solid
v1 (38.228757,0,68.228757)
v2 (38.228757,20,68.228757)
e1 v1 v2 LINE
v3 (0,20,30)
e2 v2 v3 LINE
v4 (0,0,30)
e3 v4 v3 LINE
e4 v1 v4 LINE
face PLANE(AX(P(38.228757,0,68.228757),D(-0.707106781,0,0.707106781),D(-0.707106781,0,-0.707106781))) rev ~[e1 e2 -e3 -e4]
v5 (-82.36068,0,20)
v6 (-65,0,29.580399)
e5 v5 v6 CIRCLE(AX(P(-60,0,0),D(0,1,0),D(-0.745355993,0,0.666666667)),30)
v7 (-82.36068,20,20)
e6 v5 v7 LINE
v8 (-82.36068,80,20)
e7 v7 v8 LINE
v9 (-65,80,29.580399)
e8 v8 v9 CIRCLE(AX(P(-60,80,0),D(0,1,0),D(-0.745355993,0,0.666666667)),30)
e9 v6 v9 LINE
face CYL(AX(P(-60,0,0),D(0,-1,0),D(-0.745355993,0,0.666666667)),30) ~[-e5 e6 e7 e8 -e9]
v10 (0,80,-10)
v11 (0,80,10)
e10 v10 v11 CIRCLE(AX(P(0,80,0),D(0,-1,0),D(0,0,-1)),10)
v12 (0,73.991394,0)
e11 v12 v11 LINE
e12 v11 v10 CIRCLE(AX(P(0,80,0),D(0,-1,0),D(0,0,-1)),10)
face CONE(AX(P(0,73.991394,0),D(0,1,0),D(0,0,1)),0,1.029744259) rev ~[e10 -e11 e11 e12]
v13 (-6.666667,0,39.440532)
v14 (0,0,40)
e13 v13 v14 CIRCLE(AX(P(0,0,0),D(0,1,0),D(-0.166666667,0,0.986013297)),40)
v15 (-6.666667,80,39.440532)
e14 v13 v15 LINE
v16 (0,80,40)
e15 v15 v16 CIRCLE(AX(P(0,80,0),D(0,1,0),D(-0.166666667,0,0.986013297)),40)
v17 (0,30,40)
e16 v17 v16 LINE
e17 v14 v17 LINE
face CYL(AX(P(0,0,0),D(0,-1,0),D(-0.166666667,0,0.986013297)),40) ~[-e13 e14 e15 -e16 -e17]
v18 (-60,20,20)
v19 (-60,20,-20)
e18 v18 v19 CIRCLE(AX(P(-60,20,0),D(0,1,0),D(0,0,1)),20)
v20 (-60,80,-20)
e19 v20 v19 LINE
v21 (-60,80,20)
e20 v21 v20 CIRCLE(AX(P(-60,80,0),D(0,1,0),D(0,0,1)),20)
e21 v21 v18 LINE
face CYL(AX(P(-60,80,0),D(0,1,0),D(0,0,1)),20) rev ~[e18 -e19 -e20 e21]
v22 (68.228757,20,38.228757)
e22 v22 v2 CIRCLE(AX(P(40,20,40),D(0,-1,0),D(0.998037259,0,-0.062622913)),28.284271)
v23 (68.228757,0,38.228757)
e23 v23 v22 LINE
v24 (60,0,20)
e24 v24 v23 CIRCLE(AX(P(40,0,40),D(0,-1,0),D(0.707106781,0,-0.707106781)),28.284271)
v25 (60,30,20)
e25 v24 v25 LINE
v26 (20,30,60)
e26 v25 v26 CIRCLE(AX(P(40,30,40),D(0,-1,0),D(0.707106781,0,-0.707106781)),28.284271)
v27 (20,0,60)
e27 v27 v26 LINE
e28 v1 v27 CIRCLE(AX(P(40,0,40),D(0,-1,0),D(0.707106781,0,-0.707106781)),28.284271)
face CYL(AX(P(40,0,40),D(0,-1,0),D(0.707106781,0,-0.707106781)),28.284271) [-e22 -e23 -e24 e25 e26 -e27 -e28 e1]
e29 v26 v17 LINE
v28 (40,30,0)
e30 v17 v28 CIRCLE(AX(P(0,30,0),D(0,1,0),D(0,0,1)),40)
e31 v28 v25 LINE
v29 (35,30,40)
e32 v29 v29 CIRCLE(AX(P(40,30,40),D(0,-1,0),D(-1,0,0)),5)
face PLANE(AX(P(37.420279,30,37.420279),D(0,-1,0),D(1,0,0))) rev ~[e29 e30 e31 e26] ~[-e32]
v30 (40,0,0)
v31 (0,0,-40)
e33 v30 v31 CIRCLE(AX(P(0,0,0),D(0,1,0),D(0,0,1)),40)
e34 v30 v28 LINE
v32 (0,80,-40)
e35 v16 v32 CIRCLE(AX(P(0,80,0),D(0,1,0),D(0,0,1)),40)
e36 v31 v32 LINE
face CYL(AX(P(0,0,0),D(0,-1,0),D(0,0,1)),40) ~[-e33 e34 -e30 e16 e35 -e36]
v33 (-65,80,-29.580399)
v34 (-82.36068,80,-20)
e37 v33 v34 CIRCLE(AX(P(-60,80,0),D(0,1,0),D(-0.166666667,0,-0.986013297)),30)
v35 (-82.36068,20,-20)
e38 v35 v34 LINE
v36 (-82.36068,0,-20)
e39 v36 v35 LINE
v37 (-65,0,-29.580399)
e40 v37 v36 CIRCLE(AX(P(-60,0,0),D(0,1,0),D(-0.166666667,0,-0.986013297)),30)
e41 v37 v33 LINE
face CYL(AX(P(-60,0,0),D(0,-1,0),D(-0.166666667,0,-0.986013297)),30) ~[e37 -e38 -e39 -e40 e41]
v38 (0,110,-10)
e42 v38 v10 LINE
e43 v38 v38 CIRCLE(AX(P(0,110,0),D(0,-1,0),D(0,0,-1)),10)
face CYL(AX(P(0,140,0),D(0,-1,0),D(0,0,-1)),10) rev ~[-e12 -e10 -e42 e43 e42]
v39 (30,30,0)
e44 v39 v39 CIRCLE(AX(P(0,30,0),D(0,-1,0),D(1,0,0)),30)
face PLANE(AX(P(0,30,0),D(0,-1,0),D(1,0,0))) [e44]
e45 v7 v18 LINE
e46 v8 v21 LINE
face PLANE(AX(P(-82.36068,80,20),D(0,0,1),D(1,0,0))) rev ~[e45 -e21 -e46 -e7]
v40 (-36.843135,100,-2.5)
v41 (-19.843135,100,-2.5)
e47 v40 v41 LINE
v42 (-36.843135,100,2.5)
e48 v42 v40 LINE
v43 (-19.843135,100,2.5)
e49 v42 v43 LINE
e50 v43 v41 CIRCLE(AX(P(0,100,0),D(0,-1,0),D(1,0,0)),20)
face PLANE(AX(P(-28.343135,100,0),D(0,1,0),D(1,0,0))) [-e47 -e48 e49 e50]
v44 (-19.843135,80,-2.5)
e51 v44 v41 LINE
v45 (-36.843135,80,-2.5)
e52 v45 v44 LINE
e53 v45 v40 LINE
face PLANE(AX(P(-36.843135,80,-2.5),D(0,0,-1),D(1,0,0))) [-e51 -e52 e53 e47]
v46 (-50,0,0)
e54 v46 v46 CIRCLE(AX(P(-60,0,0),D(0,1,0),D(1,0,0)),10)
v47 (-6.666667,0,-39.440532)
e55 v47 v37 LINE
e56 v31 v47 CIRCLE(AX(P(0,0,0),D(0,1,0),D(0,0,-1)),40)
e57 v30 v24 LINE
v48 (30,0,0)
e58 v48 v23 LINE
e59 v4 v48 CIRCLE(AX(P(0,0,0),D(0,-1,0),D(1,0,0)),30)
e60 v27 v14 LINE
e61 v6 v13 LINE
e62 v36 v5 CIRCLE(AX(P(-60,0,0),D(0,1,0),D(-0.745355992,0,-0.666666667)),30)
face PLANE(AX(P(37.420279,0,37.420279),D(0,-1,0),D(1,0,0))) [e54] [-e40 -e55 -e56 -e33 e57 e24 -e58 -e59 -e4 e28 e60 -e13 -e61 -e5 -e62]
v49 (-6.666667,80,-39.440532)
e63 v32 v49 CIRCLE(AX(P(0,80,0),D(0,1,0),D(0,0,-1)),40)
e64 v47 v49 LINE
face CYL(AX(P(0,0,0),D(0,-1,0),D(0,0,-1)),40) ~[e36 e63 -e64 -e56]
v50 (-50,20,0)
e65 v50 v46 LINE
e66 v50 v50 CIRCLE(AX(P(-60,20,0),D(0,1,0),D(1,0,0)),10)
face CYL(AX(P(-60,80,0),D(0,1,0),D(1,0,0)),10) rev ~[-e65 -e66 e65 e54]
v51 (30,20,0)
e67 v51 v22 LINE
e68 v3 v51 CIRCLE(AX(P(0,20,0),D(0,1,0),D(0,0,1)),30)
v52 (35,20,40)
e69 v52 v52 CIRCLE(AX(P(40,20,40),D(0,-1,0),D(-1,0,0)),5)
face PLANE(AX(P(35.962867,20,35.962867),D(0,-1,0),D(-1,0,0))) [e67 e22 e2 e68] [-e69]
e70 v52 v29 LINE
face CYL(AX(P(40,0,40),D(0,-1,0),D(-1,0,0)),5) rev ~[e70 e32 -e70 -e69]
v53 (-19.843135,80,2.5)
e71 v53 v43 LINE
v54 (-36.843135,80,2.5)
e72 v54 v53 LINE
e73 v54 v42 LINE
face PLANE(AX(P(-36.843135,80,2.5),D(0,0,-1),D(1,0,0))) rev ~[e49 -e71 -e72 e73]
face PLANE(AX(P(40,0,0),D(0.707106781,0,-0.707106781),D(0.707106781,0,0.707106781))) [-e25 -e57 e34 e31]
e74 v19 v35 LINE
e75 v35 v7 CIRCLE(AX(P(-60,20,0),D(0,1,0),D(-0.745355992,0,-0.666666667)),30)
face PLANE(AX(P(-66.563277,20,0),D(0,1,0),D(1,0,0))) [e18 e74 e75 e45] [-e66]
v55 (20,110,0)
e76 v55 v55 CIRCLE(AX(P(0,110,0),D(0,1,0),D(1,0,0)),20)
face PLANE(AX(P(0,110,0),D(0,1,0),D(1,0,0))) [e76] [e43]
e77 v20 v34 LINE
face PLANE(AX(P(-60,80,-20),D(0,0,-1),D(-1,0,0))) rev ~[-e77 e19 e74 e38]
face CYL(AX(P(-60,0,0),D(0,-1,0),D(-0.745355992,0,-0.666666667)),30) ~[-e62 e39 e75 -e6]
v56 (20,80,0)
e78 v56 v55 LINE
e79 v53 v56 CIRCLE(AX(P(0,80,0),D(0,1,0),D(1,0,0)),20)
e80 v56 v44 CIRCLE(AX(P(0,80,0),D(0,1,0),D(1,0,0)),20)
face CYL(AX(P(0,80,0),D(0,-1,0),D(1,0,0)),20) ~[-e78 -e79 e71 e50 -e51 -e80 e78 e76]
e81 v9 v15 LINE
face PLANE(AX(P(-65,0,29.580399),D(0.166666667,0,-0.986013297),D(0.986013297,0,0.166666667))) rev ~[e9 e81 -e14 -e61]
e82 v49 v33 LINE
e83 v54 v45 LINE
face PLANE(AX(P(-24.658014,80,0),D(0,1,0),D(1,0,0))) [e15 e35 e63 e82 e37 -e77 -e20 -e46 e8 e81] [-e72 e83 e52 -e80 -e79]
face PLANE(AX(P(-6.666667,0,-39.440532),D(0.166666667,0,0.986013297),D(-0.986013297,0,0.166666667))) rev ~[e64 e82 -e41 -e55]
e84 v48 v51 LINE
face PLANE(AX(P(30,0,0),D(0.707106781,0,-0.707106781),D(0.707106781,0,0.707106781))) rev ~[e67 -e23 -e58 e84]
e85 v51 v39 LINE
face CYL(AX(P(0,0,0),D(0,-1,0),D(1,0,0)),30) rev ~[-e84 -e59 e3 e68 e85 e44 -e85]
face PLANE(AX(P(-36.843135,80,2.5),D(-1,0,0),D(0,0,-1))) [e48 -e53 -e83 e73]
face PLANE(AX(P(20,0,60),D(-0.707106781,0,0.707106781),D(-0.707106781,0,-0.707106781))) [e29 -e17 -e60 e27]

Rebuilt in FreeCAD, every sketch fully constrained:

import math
import FreeCAD as App
import Part
import Sketcher
from FreeCAD import Vector
Q = App.Units.Quantity

doc = App.newDocument("Part")
body = doc.addObject("PartDesign::Body", "Body")

# Sketch on XZ plane
sketch1 = body.newObject("Sketcher::SketchObject", "Sketch")
sketch1.AttachmentSupport = (doc.getObject("XZ_Plane"), [""])
sketch1.MapMode = "FlatFace"
sketch1.addGeometry(Part.LineSegment(Vector(-6.666667, -39.440532, 0), Vector(-65, -29.580399, 0)), False)
sketch1.addGeometry(Part.ArcOfCircle(Part.Circle(Vector(-60, 0, 0), Vector(0, 0, 1), 30), math.radians(-138.189685), math.radians(-99.594068)), False)
sketch1.addGeometry(Part.ArcOfCircle(Part.Circle(Vector(-60, 0, 0), Vector(0, 0, 1), 30), math.radians(138.189685), math.radians(221.810315)), False)
sketch1.addGeometry(Part.ArcOfCircle(Part.Circle(Vector(-60, 0, 0), Vector(0, 0, 1), 30), math.radians(99.594068), math.radians(138.189685)), False)
sketch1.addGeometry(Part.LineSegment(Vector(-65, 29.580399, 0), Vector(-6.666667, 39.440532, 0)), False)
sketch1.addGeometry(Part.ArcOfCircle(Part.Circle(Vector(0, 0, 0), Vector(0, 0, 1), 40), math.radians(90), math.radians(99.594068)), False)
sketch1.addGeometry(Part.ArcOfCircle(Part.Circle(Vector(0, 0, 0), Vector(0, 0, 1), 40), math.radians(-90), math.radians(90)), False)
sketch1.addGeometry(Part.ArcOfCircle(Part.Circle(Vector(0, 0, 0), Vector(0, 0, 1), 40), math.radians(-99.594068), math.radians(-90)), False)
sketch1.addConstraint(Sketcher.Constraint("Tangent", 0, 2, 1, 2))
sketch1.addConstraint(Sketcher.Constraint("Tangent", 1, 1, 2, 2))
sketch1.addConstraint(Sketcher.Constraint("Tangent", 2, 1, 3, 2))
sketch1.addConstraint(Sketcher.Constraint("Tangent", 3, 1, 4, 1))
sketch1.addConstraint(Sketcher.Constraint("Tangent", 4, 2, 5, 2))
sketch1.addConstraint(Sketcher.Constraint("Tangent", 5, 1, 6, 2))
sketch1.addConstraint(Sketcher.Constraint("Tangent", 6, 1, 7, 2))
sketch1.addConstraint(Sketcher.Constraint("Tangent", 7, 1, 0, 1))
sketch1.addConstraint(Sketcher.Constraint("Coincident", 5, 3, -1, 1))
sketch1.addConstraint(Sketcher.Constraint("Coincident", 3, 3, 1, 3))
sketch1.addConstraint(Sketcher.Constraint("Equal", 5, 6))
sketch1.addConstraint(Sketcher.Constraint("Equal", 6, 7))
sketch1.addConstraint(Sketcher.Constraint("Symmetric", 1, 1, 2, 1, -1))
sketch1.addConstraint(Sketcher.Constraint("PointOnObject", 5, 1, -2))
sketch1.addConstraint(Sketcher.Constraint("PointOnObject", 6, 1, -2))
sketch1.addConstraint(Sketcher.Constraint("Radius", 1, 30.0))
sketch1.addConstraint(Sketcher.Constraint("Radius", 5, 40.0))
sketch1.addConstraint(Sketcher.Constraint("DistanceX", 1, 3, -1, 1, 60.0))
sketch1.addConstraint(Sketcher.Constraint("DistanceY", 1, 1, -1, 1, 20.0))
pad1 = body.newObject("PartDesign::Pad", "Pad")
pad1.Profile = sketch1
pad1.Length = 80
pad1.Reversed = True

# Sketch on XZ plane
sketch2 = body.newObject("Sketcher::SketchObject", "Sketch001")
sketch2.AttachmentSupport = (doc.getObject("XZ_Plane"), [""])
sketch2.MapMode = "FlatFace"
sketch2.addGeometry(Part.Circle(Vector(0, 0, 0), Vector(0, 0, 1), 30), False)
sketch2.addConstraint(Sketcher.Constraint("Coincident", 0, 3, -1, 1))
sketch2.addConstraint(Sketcher.Constraint("Diameter", 0, 60.0))
pocket1 = body.newObject("PartDesign::Pocket", "Pocket")
pocket1.Profile = sketch2
pocket1.Length = 30

# Sketch on XZ plane
sketch3 = body.newObject("Sketcher::SketchObject", "Sketch002")
sketch3.AttachmentSupport = (doc.getObject("XZ_Plane"), [""])
sketch3.MapMode = "FlatFace"
sketch3.AttachmentOffset = App.Placement(Vector(0, 0, -80), App.Rotation())
sketch3.addGeometry(Part.Circle(Vector(0, 0, 0), Vector(0, 0, 1), 20), False)
sketch3.addConstraint(Sketcher.Constraint("Coincident", 0, 3, -1, 1))
sketch3.addConstraint(Sketcher.Constraint("Diameter", 0, 40.0))
pad2 = body.newObject("PartDesign::Pad", "Pad001")
pad2.Profile = sketch3
pad2.Length = 30
pad2.Reversed = True

# Sketch on XZ plane
sketch4 = body.newObject("Sketcher::SketchObject", "Sketch003")
sketch4.AttachmentSupport = (doc.getObject("XZ_Plane"), [""])
sketch4.MapMode = "FlatFace"
sketch4.AttachmentOffset = App.Placement(Vector(0, 0, -110), App.Rotation())
sketch4.addGeometry(Part.Circle(Vector(0, 0, 0), Vector(0, 0, 1), 10), False)
sketch4.addConstraint(Sketcher.Constraint("Coincident", 0, 3, -1, 1))
sketch4.addConstraint(Sketcher.Constraint("Diameter", 0, 20.0))
doc.recompute()
hole = body.newObject("PartDesign::Hole", "Hole")
hole.Profile = sketch4
hole.ThreadType = "None"
hole.Diameter = 20
hole.DepthType = "Dimension"
hole.Depth = 30
hole.DrillPoint = "Angled"
hole.DrillPointAngle = 118
hole.Reversed = True

# Sketch on XZ plane
sketch5 = body.newObject("Sketcher::SketchObject", "Sketch004")
sketch5.AttachmentSupport = (doc.getObject("XZ_Plane"), [""])
sketch5.MapMode = "FlatFace"
sketch5.AttachmentOffset = App.Placement(Vector(0, 0, -80), App.Rotation())
sketch5.addGeometry(Part.Circle(Vector(-60, 0, 0), Vector(0, 0, 1), 10), False)
sketch5.addConstraint(Sketcher.Constraint("PointOnObject", 0, 3, -1))
sketch5.addConstraint(Sketcher.Constraint("Diameter", 0, 20.0))
sketch5.addConstraint(Sketcher.Constraint("DistanceX", 0, 3, -1, 1, 60.0))
pocket2 = body.newObject("PartDesign::Pocket", "Pocket001")
pocket2.Profile = sketch5
pocket2.Length = 109
pocket2.Reversed = True

# Sketch on XZ plane
sketch6 = body.newObject("Sketcher::SketchObject", "Sketch005")
sketch6.AttachmentSupport = (doc.getObject("XZ_Plane"), [""])
sketch6.MapMode = "FlatFace"
sketch6.AttachmentOffset = App.Placement(Vector(0, 0, -80), App.Rotation())
sketch6.addGeometry(Part.ArcOfCircle(Part.Circle(Vector(-60, 0, 0), Vector(0, 0, 1), 20), math.radians(-90), math.radians(90)), False)
sketch6.addGeometry(Part.LineSegment(Vector(-60, -20, 0), Vector(-82.36068, -20, 0)), False)
sketch6.addGeometry(Part.ArcOfCircle(Part.Circle(Vector(-60, 0, 0), Vector(0, 0, 1), 30), math.radians(138.189685), math.radians(221.810315)), False)
sketch6.addGeometry(Part.LineSegment(Vector(-82.36068, 20, 0), Vector(-60, 20, 0)), False)
sketch6.addGeometry(Part.Circle(Vector(-60, 0, 0), Vector(0, 0, 1), 10), False)
sketch6.addConstraint(Sketcher.Constraint("Tangent", 0, 1, 1, 1))
sketch6.addConstraint(Sketcher.Constraint("Coincident", 1, 2, 2, 2))
sketch6.addConstraint(Sketcher.Constraint("Coincident", 2, 1, 3, 1))
sketch6.addConstraint(Sketcher.Constraint("Tangent", 3, 2, 0, 2))
sketch6.addConstraint(Sketcher.Constraint("Horizontal", 1))
sketch6.addConstraint(Sketcher.Constraint("Horizontal", 3))
sketch6.addConstraint(Sketcher.Constraint("Coincident", 2, 3, 0, 3))
sketch6.addConstraint(Sketcher.Constraint("Coincident", 4, 3, 0, 3))
sketch6.addConstraint(Sketcher.Constraint("PointOnObject", 0, 3, -1))
sketch6.addConstraint(Sketcher.Constraint("Diameter", 4, 20.0))
sketch6.addConstraint(Sketcher.Constraint("Radius", 0, 20.0))
sketch6.addConstraint(Sketcher.Constraint("Radius", 2, 30.0))
sketch6.addConstraint(Sketcher.Constraint("DistanceX", 0, 3, -1, 1, 60.0))
pocket3 = body.newObject("PartDesign::Pocket", "Pocket002")
pocket3.Profile = sketch6
pocket3.Length = 60
pocket3.Reversed = True

# Sketch on XZ plane
sketch7 = body.newObject("Sketcher::SketchObject", "Sketch006")
sketch7.AttachmentSupport = (doc.getObject("XZ_Plane"), [""])
sketch7.MapMode = "FlatFace"
sketch7.addGeometry(Part.LineSegment(Vector(20, 60, 0), Vector(0, 40, 0)), False)
sketch7.addGeometry(Part.ArcOfCircle(Part.Circle(Vector(0, 0, 0), Vector(0, 0, 1), 40), math.radians(0), math.radians(90)), False)
sketch7.addGeometry(Part.LineSegment(Vector(40, 0, 0), Vector(60, 20, 0)), False)
sketch7.addGeometry(Part.ArcOfCircle(Part.Circle(Vector(40, 40, 0), Vector(0, 0, 1), 28.284271), math.radians(-45), math.radians(135)), False)
sketch7.addConstraint(Sketcher.Constraint("Coincident", 0, 2, 1, 2))
sketch7.addConstraint(Sketcher.Constraint("Coincident", 1, 1, 2, 1))
sketch7.addConstraint(Sketcher.Constraint("Tangent", 2, 2, 3, 1))
sketch7.addConstraint(Sketcher.Constraint("Tangent", 3, 2, 0, 1))
sketch7.addConstraint(Sketcher.Constraint("Coincident", 1, 3, -1, 1))
sketch7.addConstraint(Sketcher.Constraint("PointOnObject", 0, 2, -2))
sketch7.addConstraint(Sketcher.Constraint("PointOnObject", 1, 1, -1))
sketch7.addConstraint(Sketcher.Constraint("Parallel", 0, 2))
sketch7.addConstraint(Sketcher.Constraint("Horizontal", 3, 3, 0, 2))
sketch7.addConstraint(Sketcher.Constraint("Vertical", 3, 3, 1, 1))
sketch7.addConstraint(Sketcher.Constraint("Radius", 1, 40.0))
pad3 = body.newObject("PartDesign::Pad", "Pad002")
pad3.Profile = sketch7
pad3.Length = 30
pad3.Reversed = True

# Sketch on XZ plane
sketch8 = body.newObject("Sketcher::SketchObject", "Sketch007")
sketch8.AttachmentSupport = (doc.getObject("XZ_Plane"), [""])
sketch8.MapMode = "FlatFace"
sketch8.addGeometry(Part.Circle(Vector(40, 40, 0), Vector(0, 0, 1), 5), False)
sketch8.addConstraint(Sketcher.Constraint("Diameter", 0, 10.0))
sketch8.addConstraint(Sketcher.Constraint("DistanceX", -1, 1, 0, 3, 40.0))
sketch8.addConstraint(Sketcher.Constraint("DistanceY", -1, 1, 0, 3, 40.0))
pocket4 = body.newObject("PartDesign::Pocket", "Pocket003")
pocket4.Profile = sketch8
pocket4.Length = 30

# Sketch on XZ plane
sketch9 = body.newObject("Sketcher::SketchObject", "Sketch008")
sketch9.AttachmentSupport = (doc.getObject("XZ_Plane"), [""])
sketch9.MapMode = "FlatFace"
sketch9.addGeometry(Part.ArcOfCircle(Part.Circle(Vector(40, 40, 0), Vector(0, 0, 1), 28.284271), math.radians(-3.590378), math.radians(93.590378)), False)
sketch9.addGeometry(Part.LineSegment(Vector(38.228757, 68.228757, 0), Vector(0, 30, 0)), False)
sketch9.addGeometry(Part.ArcOfCircle(Part.Circle(Vector(0, 0, 0), Vector(0, 0, 1), 30), math.radians(0), math.radians(90)), False)
sketch9.addGeometry(Part.LineSegment(Vector(30, 0, 0), Vector(68.228757, 38.228757, 0)), False)
sketch9.addGeometry(Part.Circle(Vector(40, 40, 0), Vector(0, 0, 1), 5), False)
sketch9.addConstraint(Sketcher.Constraint("Coincident", 0, 2, 1, 1))
sketch9.addConstraint(Sketcher.Constraint("Coincident", 1, 2, 2, 2))
sketch9.addConstraint(Sketcher.Constraint("Coincident", 2, 1, 3, 1))
sketch9.addConstraint(Sketcher.Constraint("Coincident", 3, 2, 0, 1))
sketch9.addConstraint(Sketcher.Constraint("Coincident", 2, 3, -1, 1))
sketch9.addConstraint(Sketcher.Constraint("Coincident", 4, 3, 0, 3))
sketch9.addConstraint(Sketcher.Constraint("PointOnObject", 1, 2, -2))
sketch9.addConstraint(Sketcher.Constraint("PointOnObject", 2, 1, -1))
sketch9.addConstraint(Sketcher.Constraint("Parallel", 1, 3))
sketch9.addConstraint(Sketcher.Constraint("Equal", 1, 3))
sketch9.addConstraint(Sketcher.Constraint("Diameter", 4, 10.0))
sketch9.addConstraint(Sketcher.Constraint("Radius", 2, 30.0))
sketch9.addConstraint(Sketcher.Constraint("Angle", 1, Q("-135 deg")))
sketch9.addConstraint(Sketcher.Constraint("DistanceX", -1, 1, 0, 3, 40.0))
sketch9.addConstraint(Sketcher.Constraint("Radius", 0, 28.284271))
pocket5 = body.newObject("PartDesign::Pocket", "Pocket004")
pocket5.Profile = sketch9
pocket5.Length = 20

# Sketch on XZ plane
sketch10 = body.newObject("Sketcher::SketchObject", "Sketch009")
sketch10.AttachmentSupport = (doc.getObject("XZ_Plane"), [""])
sketch10.MapMode = "FlatFace"
sketch10.AttachmentOffset = App.Placement(Vector(0, 0, -80), App.Rotation())
sketch10.addGeometry(Part.LineSegment(Vector(-36.843135, -2.5, 0), Vector(-36.843135, 2.5, 0)), False)
sketch10.addGeometry(Part.LineSegment(Vector(-36.843135, 2.5, 0), Vector(-19.843135, 2.5, 0)), False)
sketch10.addGeometry(Part.LineSegment(Vector(-19.843135, 2.5, 0), Vector(-19.843135, -2.5, 0)), False)
sketch10.addGeometry(Part.LineSegment(Vector(-19.843135, -2.5, 0), Vector(-36.843135, -2.5, 0)), False)
sketch10.addConstraint(Sketcher.Constraint("Coincident", 0, 2, 1, 1))
sketch10.addConstraint(Sketcher.Constraint("Coincident", 1, 2, 2, 1))
sketch10.addConstraint(Sketcher.Constraint("Coincident", 2, 2, 3, 1))
sketch10.addConstraint(Sketcher.Constraint("Coincident", 3, 2, 0, 1))
sketch10.addConstraint(Sketcher.Constraint("Vertical", 0))
sketch10.addConstraint(Sketcher.Constraint("Horizontal", 1))
sketch10.addConstraint(Sketcher.Constraint("Vertical", 2))
sketch10.addConstraint(Sketcher.Constraint("Horizontal", 3))
sketch10.addConstraint(Sketcher.Constraint("DistanceX", 1, 1, 1, 2, 17.0))
sketch10.addConstraint(Sketcher.Constraint("DistanceY", 0, 1, 0, 2, 5.0))
sketch10.addConstraint(Sketcher.Constraint("DistanceY", -1, 1, 0, 2, 2.5))
sketch10.addConstraint(Sketcher.Constraint("DistanceX", 0, 2, -1, 1, 36.843135))
pad4 = body.newObject("PartDesign::Pad", "Pad003")
pad4.Profile = sketch10
pad4.Length = 20
pad4.Reversed = True

doc.recompute()
